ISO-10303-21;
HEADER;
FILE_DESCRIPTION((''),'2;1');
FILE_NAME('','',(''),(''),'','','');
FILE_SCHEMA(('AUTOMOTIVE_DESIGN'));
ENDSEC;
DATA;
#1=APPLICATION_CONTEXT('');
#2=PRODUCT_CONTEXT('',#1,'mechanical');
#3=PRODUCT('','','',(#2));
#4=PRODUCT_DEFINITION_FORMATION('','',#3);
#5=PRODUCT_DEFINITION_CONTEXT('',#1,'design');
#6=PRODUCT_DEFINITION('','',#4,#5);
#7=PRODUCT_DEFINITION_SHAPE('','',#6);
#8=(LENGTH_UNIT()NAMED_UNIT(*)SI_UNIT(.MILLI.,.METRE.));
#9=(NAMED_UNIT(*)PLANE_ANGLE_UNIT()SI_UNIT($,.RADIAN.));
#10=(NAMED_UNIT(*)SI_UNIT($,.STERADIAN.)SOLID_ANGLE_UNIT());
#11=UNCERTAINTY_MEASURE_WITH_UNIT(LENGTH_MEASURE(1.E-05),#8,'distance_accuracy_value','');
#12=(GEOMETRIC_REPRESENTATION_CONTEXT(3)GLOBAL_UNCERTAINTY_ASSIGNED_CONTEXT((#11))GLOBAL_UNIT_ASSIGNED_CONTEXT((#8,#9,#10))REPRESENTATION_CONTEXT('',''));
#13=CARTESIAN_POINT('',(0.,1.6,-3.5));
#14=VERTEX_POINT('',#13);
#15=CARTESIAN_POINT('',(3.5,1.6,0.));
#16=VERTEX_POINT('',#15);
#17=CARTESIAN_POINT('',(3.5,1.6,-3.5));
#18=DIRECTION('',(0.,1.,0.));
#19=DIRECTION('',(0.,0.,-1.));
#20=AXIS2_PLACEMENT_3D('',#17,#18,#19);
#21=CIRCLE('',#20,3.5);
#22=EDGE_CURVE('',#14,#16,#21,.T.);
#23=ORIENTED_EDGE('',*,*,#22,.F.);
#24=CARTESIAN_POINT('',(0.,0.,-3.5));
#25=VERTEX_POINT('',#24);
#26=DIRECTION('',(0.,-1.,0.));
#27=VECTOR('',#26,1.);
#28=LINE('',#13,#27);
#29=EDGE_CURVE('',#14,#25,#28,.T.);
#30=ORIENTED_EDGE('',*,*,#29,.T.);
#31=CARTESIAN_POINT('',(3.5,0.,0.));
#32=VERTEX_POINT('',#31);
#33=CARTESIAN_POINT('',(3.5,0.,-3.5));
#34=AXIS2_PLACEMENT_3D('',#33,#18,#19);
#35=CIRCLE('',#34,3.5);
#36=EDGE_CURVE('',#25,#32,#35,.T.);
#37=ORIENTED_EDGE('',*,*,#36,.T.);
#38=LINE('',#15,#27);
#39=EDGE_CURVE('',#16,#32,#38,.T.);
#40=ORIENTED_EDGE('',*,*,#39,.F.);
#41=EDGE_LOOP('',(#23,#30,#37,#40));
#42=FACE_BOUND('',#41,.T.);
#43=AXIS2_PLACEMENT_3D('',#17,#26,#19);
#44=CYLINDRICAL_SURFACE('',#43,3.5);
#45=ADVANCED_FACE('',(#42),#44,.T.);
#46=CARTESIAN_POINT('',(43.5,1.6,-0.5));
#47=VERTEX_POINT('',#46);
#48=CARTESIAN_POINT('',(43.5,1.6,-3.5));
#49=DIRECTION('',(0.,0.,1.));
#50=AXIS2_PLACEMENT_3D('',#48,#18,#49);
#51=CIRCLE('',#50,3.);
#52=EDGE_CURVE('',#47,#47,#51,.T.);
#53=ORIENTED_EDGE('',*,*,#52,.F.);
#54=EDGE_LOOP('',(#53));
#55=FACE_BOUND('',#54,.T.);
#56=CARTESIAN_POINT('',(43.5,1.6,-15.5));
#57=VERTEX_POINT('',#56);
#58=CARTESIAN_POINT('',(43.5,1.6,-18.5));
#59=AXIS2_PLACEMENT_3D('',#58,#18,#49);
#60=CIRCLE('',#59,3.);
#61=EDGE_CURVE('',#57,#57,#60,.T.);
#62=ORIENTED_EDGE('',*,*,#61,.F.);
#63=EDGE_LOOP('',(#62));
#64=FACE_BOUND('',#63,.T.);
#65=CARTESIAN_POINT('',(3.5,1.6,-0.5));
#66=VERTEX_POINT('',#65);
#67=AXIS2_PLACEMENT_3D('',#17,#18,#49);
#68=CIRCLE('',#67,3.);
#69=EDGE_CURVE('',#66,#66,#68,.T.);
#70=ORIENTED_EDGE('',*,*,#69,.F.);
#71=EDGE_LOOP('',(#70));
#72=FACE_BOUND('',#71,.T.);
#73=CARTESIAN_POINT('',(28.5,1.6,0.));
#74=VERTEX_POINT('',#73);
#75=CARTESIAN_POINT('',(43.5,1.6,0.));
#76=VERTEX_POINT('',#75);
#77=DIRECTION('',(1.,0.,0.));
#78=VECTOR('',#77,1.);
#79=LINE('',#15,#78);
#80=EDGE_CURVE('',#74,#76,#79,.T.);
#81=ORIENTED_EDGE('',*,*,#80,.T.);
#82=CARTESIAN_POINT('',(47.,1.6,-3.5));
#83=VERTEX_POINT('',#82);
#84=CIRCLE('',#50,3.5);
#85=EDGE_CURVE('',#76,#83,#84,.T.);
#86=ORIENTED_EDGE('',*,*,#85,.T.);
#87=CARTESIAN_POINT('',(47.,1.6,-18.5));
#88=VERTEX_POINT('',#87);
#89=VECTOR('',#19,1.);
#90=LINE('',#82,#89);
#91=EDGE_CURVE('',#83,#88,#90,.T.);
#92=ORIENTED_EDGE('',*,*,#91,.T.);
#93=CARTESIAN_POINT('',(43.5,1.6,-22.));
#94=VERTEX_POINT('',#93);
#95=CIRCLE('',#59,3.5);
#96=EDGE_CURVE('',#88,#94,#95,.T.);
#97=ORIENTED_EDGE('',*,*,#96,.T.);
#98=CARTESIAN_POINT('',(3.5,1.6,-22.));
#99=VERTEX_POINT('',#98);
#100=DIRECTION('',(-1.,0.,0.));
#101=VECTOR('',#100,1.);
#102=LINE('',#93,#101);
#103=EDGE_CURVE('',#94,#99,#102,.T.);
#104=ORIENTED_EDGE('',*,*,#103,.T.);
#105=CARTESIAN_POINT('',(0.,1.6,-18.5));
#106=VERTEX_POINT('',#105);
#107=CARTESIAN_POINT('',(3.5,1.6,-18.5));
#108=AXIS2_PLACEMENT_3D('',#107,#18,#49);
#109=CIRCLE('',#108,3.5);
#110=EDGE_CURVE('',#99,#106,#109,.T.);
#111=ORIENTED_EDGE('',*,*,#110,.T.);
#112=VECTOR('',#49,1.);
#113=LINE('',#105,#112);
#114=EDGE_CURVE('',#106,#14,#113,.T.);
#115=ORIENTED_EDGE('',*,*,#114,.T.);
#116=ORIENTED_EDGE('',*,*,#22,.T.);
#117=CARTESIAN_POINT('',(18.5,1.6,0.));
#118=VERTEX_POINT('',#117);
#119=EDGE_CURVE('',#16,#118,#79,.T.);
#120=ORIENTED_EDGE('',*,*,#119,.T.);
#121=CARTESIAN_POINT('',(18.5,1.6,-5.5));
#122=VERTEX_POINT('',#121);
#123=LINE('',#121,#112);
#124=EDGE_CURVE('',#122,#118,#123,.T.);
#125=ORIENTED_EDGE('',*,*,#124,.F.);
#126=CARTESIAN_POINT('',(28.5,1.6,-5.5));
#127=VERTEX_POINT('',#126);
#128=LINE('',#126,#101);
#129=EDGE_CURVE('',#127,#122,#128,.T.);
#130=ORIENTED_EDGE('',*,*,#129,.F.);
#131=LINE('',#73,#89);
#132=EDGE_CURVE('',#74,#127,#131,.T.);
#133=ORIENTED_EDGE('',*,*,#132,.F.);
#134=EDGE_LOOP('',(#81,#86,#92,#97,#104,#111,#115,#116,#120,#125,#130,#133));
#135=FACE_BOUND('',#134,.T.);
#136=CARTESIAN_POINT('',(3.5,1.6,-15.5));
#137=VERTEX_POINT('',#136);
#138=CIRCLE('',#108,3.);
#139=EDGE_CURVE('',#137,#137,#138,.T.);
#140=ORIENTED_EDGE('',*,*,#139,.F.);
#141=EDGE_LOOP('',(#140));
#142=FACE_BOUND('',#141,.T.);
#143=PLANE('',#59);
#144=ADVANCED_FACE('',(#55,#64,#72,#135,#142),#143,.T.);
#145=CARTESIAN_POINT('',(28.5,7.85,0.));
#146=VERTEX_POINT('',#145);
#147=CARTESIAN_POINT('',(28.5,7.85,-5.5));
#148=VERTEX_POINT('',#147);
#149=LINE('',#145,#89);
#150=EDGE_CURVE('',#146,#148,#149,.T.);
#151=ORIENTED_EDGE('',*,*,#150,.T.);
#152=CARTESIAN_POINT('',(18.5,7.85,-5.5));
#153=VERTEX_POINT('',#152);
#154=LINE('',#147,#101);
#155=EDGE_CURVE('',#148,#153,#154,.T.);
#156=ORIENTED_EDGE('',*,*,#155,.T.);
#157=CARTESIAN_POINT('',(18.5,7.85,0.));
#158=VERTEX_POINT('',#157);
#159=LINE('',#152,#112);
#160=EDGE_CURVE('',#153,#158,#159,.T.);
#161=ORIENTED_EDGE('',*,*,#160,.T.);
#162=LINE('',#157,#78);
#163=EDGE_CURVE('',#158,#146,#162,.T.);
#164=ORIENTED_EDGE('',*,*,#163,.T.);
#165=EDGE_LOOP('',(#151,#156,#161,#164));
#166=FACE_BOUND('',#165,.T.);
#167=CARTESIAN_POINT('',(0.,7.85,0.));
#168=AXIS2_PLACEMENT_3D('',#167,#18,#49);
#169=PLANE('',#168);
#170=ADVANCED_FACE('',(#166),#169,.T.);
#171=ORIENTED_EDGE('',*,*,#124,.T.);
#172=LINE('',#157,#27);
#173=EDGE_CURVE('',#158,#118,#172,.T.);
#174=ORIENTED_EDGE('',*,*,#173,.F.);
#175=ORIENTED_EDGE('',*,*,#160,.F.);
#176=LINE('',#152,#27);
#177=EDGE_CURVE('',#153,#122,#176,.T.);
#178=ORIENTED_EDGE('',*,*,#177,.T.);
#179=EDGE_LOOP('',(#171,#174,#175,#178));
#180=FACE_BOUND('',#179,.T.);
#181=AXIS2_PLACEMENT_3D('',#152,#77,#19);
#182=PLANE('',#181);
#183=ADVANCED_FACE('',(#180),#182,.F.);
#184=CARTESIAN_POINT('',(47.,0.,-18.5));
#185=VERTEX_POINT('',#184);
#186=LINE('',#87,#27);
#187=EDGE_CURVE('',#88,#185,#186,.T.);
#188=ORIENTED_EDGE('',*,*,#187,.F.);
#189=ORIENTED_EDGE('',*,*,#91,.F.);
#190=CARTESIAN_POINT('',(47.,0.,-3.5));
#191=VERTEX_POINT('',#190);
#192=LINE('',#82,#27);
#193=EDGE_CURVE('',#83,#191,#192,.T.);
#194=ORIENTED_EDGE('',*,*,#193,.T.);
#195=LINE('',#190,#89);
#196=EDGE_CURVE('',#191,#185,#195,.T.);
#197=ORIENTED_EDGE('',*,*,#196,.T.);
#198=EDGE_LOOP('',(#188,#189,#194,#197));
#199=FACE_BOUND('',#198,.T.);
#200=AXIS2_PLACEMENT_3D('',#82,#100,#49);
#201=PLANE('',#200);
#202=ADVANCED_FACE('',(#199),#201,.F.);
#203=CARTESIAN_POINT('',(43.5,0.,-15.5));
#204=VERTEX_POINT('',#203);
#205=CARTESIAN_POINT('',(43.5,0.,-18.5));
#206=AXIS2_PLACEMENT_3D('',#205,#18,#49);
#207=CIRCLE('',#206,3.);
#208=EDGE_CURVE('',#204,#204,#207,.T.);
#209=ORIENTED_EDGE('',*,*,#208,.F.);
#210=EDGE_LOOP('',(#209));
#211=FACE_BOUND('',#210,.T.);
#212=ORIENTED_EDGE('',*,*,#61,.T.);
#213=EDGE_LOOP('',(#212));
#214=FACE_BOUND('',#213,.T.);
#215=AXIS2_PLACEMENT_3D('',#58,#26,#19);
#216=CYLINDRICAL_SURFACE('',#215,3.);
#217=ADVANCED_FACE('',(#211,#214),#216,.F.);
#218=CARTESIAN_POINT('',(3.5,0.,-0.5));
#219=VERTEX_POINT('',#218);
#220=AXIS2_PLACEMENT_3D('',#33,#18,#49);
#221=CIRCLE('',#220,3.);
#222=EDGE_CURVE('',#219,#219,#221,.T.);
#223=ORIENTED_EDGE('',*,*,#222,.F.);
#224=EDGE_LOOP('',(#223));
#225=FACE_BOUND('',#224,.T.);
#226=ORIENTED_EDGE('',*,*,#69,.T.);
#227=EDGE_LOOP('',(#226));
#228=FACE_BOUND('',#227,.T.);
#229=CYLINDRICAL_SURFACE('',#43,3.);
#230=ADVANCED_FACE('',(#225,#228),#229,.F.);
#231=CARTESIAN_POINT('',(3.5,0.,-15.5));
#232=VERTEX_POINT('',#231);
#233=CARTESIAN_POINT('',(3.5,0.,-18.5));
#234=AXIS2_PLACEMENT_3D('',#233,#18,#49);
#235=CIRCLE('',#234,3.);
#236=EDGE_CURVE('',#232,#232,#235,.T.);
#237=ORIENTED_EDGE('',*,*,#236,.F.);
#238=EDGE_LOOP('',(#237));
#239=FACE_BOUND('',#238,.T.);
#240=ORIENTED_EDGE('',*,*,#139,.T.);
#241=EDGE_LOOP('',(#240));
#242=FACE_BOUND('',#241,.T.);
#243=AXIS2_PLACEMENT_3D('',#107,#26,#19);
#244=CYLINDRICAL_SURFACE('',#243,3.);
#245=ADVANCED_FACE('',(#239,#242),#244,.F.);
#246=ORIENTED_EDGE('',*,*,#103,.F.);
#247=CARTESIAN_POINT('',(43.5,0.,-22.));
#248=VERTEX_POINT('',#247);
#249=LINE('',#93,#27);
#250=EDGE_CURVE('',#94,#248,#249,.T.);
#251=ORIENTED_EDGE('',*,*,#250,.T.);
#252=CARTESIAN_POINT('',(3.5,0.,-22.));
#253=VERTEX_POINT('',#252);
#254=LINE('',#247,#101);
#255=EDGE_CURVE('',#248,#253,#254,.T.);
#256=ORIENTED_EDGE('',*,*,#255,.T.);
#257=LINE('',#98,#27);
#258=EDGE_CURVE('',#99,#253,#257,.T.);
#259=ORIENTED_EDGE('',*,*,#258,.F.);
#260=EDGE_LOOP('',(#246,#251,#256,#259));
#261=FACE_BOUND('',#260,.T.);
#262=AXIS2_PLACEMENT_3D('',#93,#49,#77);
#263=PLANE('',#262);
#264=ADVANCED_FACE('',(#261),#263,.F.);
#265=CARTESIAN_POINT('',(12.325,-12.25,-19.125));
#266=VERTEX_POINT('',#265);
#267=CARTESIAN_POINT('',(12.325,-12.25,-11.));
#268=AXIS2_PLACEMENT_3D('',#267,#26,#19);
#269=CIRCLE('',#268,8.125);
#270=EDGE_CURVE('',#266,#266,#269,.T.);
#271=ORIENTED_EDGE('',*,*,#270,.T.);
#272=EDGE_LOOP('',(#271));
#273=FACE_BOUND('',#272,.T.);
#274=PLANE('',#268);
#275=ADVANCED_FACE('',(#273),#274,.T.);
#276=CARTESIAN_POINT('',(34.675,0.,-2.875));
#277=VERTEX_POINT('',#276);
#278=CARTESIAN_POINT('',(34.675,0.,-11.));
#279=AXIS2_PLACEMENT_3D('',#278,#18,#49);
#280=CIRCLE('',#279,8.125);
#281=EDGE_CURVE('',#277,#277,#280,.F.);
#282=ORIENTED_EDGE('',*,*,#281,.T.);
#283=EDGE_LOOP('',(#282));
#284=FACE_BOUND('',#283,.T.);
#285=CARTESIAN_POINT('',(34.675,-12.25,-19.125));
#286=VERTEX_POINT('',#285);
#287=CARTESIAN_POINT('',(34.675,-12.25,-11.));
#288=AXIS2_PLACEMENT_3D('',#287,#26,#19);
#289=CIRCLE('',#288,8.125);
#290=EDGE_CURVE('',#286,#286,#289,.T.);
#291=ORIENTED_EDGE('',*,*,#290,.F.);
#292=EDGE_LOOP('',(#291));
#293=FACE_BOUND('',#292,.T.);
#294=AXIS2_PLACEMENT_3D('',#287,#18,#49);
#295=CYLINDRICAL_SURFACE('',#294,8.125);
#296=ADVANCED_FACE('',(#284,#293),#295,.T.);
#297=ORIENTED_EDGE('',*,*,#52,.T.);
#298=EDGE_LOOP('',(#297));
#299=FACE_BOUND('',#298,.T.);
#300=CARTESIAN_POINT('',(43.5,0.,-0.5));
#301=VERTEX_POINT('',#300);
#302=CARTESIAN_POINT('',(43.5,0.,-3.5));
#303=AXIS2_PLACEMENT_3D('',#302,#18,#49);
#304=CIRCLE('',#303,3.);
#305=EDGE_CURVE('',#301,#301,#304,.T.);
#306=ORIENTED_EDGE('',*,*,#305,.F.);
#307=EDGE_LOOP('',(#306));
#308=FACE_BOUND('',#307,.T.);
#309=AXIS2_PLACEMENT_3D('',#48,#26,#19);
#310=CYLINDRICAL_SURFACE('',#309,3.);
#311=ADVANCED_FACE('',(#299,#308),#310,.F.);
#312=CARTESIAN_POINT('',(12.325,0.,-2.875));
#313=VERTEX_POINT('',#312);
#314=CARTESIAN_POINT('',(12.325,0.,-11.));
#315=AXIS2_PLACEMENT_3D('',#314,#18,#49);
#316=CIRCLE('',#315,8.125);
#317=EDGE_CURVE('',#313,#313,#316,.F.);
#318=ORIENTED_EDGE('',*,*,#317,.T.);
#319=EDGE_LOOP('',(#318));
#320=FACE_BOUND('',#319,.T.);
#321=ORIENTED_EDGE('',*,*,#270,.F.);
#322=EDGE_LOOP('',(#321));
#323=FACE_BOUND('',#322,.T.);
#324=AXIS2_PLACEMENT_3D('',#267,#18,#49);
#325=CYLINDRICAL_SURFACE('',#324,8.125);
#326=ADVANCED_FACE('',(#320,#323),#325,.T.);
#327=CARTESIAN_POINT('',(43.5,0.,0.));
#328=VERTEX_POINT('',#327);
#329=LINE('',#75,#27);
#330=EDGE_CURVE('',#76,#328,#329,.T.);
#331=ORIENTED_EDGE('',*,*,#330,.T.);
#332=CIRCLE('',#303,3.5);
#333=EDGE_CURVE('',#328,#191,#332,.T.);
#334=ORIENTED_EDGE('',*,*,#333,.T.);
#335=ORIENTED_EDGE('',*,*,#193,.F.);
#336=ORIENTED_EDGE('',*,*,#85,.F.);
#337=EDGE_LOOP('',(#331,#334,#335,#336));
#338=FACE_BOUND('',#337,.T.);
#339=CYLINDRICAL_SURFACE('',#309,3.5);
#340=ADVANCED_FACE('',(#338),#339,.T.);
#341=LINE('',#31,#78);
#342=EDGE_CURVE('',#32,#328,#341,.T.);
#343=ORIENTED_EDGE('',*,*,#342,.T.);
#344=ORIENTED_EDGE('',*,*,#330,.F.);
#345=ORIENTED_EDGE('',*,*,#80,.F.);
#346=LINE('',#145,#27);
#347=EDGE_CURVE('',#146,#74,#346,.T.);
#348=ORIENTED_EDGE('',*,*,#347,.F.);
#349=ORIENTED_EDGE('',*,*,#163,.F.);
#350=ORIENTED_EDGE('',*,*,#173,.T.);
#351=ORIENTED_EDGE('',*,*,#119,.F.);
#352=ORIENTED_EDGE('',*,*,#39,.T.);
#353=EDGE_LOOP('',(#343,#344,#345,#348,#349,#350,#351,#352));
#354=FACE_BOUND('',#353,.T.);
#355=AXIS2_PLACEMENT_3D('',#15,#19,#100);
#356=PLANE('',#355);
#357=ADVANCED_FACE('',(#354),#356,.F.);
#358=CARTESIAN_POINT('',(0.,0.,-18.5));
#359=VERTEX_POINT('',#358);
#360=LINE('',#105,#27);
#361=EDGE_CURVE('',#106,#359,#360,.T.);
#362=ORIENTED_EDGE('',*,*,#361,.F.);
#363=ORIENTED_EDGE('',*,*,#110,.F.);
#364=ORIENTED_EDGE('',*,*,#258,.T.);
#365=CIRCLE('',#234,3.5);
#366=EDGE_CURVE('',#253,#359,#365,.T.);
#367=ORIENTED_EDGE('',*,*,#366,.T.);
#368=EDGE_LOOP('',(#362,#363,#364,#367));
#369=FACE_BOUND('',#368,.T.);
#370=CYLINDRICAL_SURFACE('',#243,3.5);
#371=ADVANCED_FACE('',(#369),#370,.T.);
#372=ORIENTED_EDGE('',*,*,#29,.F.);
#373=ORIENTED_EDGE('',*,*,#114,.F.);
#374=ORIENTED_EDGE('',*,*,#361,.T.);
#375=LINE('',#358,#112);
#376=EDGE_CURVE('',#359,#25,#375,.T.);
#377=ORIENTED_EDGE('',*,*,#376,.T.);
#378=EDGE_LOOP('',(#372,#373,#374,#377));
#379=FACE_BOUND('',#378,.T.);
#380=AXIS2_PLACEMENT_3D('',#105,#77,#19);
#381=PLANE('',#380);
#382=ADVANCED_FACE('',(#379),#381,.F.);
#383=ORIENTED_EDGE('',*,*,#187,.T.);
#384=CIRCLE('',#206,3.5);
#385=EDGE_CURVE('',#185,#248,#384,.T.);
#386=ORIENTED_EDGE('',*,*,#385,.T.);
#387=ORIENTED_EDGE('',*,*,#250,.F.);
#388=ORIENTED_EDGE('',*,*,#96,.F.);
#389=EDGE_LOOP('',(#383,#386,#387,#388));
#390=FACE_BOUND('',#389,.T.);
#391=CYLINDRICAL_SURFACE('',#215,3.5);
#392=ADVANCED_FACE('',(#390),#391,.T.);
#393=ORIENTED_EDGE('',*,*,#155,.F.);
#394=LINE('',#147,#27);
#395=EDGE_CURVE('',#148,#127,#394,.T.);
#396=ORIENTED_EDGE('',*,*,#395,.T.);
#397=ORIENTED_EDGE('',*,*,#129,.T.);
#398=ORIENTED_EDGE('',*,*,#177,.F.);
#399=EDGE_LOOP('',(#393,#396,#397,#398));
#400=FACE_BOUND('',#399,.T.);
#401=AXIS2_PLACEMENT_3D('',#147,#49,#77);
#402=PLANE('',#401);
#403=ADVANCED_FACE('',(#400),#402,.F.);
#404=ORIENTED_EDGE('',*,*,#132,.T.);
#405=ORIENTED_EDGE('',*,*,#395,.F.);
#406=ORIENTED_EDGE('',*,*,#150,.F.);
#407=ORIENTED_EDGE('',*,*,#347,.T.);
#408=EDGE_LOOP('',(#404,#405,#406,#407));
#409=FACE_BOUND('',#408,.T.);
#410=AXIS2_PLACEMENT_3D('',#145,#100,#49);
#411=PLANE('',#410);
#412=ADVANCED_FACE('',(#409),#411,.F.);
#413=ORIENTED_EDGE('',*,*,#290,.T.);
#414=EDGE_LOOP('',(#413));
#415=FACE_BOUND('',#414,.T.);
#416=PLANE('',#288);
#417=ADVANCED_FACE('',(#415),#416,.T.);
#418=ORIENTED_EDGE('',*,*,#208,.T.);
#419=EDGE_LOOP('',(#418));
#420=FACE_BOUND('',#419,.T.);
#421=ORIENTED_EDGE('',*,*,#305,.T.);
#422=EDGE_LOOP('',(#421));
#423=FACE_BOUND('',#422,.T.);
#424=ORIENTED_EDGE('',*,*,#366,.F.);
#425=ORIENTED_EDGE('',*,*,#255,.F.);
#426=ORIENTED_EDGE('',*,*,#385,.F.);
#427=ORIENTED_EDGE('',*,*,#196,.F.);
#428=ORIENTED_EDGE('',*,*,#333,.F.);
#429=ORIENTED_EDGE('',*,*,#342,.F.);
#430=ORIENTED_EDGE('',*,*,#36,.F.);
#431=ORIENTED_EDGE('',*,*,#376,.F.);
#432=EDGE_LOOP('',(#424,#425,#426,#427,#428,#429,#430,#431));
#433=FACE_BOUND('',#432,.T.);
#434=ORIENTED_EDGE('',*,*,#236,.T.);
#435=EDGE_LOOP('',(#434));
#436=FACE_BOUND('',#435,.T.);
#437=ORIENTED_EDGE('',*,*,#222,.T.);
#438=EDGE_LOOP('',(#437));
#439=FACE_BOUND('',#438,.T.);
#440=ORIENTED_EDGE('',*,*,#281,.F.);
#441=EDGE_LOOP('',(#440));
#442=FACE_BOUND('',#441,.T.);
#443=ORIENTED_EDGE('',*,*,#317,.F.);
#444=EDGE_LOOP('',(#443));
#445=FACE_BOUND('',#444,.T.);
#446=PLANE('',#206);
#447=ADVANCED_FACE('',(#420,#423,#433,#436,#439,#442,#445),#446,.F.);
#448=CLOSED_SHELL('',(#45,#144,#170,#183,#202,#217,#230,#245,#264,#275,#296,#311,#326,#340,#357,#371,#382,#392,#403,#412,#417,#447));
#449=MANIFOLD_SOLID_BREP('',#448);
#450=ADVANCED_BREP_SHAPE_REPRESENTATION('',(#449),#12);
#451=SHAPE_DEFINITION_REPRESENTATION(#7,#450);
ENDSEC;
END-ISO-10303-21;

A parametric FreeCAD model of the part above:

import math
import FreeCAD as App
import Part
import Sketcher

V = App.Vector
Q = App.Units.Quantity


def add_polygon(sketch, points):
    """Adds a closed chain of lines whose ends are joined by coincident constraints."""
    first, n = sketch.GeometryCount, len(points)
    for a, b in zip(points, points[1:] + points[:1]):
        sketch.addGeometry(Part.LineSegment(App.Vector(*a, 0), App.Vector(*b, 0)), False)
    for i in range(n):
        sketch.addConstraint(Sketcher.Constraint("Coincident", first + i, 2, first + (i + 1) % n, 1))

doc = App.newDocument("Part")
body = doc.addObject("PartDesign::Body", "Body")

# Sketch on XZ plane
sketch1 = body.newObject("Sketcher::SketchObject", "Sketch")
sketch1.AttachmentSupport = (doc.getObject("XZ_Plane"), [""])
sketch1.MapMode = "FlatFace"
sketch1.addGeometry(Part.LineSegment(V(3.5, 0, 0), V(43.5, 0, 0)), False)
sketch1.addGeometry(Part.ArcOfCircle(Part.Circle(V(43.5, -3.5, 0), V(0, 0, 1), 3.5), math.radians(0), math.radians(90)), False)
sketch1.addGeometry(Part.LineSegment(V(47, -3.5, 0), V(47, -18.5, 0)), False)
sketch1.addGeometry(Part.ArcOfCircle(Part.Circle(V(43.5, -18.5, 0), V(0, 0, 1), 3.5), math.radians(-90), math.radians(0)), False)
sketch1.addGeometry(Part.LineSegment(V(43.5, -22, 0), V(3.5, -22, 0)), False)
sketch1.addGeometry(Part.ArcOfCircle(Part.Circle(V(3.5, -18.5, 0), V(0, 0, 1), 3.5), math.radians(-180), math.radians(-90)), False)
sketch1.addGeometry(Part.LineSegment(V(0, -18.5, 0), V(0, -3.5, 0)), False)
sketch1.addGeometry(Part.ArcOfCircle(Part.Circle(V(3.5, -3.5, 0), V(0, 0, 1), 3.5), math.radians(90), math.radians(180)), False)
sketch1.addGeometry(Part.Circle(V(3.5, -3.5, 0), V(0, 0, 1), 3), False)
sketch1.addGeometry(Part.Circle(V(43.5, -3.5, 0), V(0, 0, 1), 3), False)
sketch1.addGeometry(Part.Circle(V(3.5, -18.5, 0), V(0, 0, 1), 3), False)
sketch1.addGeometry(Part.Circle(V(43.5, -18.5, 0), V(0, 0, 1), 3), False)
sketch1.addConstraint(Sketcher.Constraint("Tangent", 0, 2, 1, 2))
sketch1.addConstraint(Sketcher.Constraint("Tangent", 1, 1, 2, 1))
sketch1.addConstraint(Sketcher.Constraint("Tangent", 2, 2, 3, 2))
sketch1.addConstraint(Sketcher.Constraint("Tangent", 3, 1, 4, 1))
sketch1.addConstraint(Sketcher.Constraint("Tangent", 4, 2, 5, 2))
sketch1.addConstraint(Sketcher.Constraint("Tangent", 5, 1, 6, 1))
sketch1.addConstraint(Sketcher.Constraint("Tangent", 6, 2, 7, 2))
sketch1.addConstraint(Sketcher.Constraint("Tangent", 7, 1, 0, 1))
sketch1.addConstraint(Sketcher.Constraint("Horizontal", 0))
sketch1.addConstraint(Sketcher.Constraint("Vertical", 2))
sketch1.addConstraint(Sketcher.Constraint("Horizontal", 4))
sketch1.addConstraint(Sketcher.Constraint("Vertical", 6))
sketch1.addConstraint(Sketcher.Constraint("Coincident", 8, 3, 7, 3))
sketch1.addConstraint(Sketcher.Constraint("Coincident", 9, 3, 1, 3))
sketch1.addConstraint(Sketcher.Constraint("Coincident", 10, 3, 5, 3))
sketch1.addConstraint(Sketcher.Constraint("Coincident", 11, 3, 3, 3))
sketch1.addConstraint(Sketcher.Constraint("Equal", 1, 3))
sketch1.addConstraint(Sketcher.Constraint("Equal", 3, 5))
sketch1.addConstraint(Sketcher.Constraint("Equal", 5, 7))
sketch1.addConstraint(Sketcher.Constraint("Equal", 8, 9))
sketch1.addConstraint(Sketcher.Constraint("Equal", 9, 10))
sketch1.addConstraint(Sketcher.Constraint("Equal", 10, 11))
sketch1.addConstraint(Sketcher.Constraint("PointOnObject", 0, 2, -1))
sketch1.addConstraint(Sketcher.Constraint("PointOnObject", 5, 1, -2))
sketch1.addConstraint(Sketcher.Constraint("Diameter", 8, Q("6 mm")))
sketch1.addConstraint(Sketcher.Constraint("Radius", 1, Q("3.5 mm")))
sketch1.addConstraint(Sketcher.Constraint("DistanceX", 0, 1, 0, 2, Q("40 mm")))
sketch1.addConstraint(Sketcher.Constraint("DistanceY", 2, 2, 2, 1, Q("15 mm")))
pad1 = body.newObject("PartDesign::Pad", "Pad")
pad1.Profile = sketch1
pad1.Length = 1.6
pad1.Reversed = True

# Sketch on XZ plane
sketch2 = body.newObject("Sketcher::SketchObject", "Sketch001")
sketch2.AttachmentSupport = (doc.getObject("XZ_Plane"), [""])
sketch2.MapMode = "FlatFace"
sketch2.AttachmentOffset = App.Placement(V(0, 0, -1.6), App.Rotation())
add_polygon(sketch2, [(18, -6), (18, 0), (28, 0), (28, -6)])  # lines 0-3
sketch2.addConstraint(Sketcher.Constraint("Vertical", 0))
sketch2.addConstraint(Sketcher.Constraint("Horizontal", 1))
sketch2.addConstraint(Sketcher.Constraint("Vertical", 2))
sketch2.addConstraint(Sketcher.Constraint("Horizontal", 3))
sketch2.addConstraint(Sketcher.Constraint("PointOnObject", 0, 2, -1))
sketch2.addConstraint(Sketcher.Constraint("DistanceX", 1, 1, 1, 2, Q("10 mm")))
sketch2.addConstraint(Sketcher.Constraint("DistanceY", 0, 1, 0, 2, Q("5.5 mm")))
sketch2.addConstraint(Sketcher.Constraint("DistanceX", -1, 1, 0, 2, Q("18.5 mm")))
pad2 = body.newObject("PartDesign::Pad", "Pad001")
pad2.Profile = sketch2
pad2.Length = 6.25
pad2.Reversed = True

# Sketch on XZ plane
sketch3 = body.newObject("Sketcher::SketchObject", "Sketch002")
sketch3.AttachmentSupport = (doc.getObject("XZ_Plane"), [""])
sketch3.MapMode = "FlatFace"
sketch3.addGeometry(Part.Circle(V(12, -11, 0), V(0, 0, 1), 8), False)
sketch3.addGeometry(Part.Circle(V(35, -11, 0), V(0, 0, 1), 8), False)
sketch3.addConstraint(Sketcher.Constraint("Equal", 0, 1))
sketch3.addConstraint(Sketcher.Constraint("Horizontal", 0, 3, 1, 3))
sketch3.addConstraint(Sketcher.Constraint("Diameter", 0, Q("16.25 mm")))
sketch3.addConstraint(Sketcher.Constraint("DistanceY", 0, 3, -1, 1, Q("11 mm")))
sketch3.addConstraint(Sketcher.Constraint("DistanceX", 0, 3, 1, 3, Q("22.35 mm")))
sketch3.addConstraint(Sketcher.Constraint("DistanceX", -1, 1, 0, 3, Q("12.325 mm")))
pad3 = body.newObject("PartDesign::Pad", "Pad002")
pad3.Profile = sketch3
pad3.Length = 12.25

doc.recompute()
